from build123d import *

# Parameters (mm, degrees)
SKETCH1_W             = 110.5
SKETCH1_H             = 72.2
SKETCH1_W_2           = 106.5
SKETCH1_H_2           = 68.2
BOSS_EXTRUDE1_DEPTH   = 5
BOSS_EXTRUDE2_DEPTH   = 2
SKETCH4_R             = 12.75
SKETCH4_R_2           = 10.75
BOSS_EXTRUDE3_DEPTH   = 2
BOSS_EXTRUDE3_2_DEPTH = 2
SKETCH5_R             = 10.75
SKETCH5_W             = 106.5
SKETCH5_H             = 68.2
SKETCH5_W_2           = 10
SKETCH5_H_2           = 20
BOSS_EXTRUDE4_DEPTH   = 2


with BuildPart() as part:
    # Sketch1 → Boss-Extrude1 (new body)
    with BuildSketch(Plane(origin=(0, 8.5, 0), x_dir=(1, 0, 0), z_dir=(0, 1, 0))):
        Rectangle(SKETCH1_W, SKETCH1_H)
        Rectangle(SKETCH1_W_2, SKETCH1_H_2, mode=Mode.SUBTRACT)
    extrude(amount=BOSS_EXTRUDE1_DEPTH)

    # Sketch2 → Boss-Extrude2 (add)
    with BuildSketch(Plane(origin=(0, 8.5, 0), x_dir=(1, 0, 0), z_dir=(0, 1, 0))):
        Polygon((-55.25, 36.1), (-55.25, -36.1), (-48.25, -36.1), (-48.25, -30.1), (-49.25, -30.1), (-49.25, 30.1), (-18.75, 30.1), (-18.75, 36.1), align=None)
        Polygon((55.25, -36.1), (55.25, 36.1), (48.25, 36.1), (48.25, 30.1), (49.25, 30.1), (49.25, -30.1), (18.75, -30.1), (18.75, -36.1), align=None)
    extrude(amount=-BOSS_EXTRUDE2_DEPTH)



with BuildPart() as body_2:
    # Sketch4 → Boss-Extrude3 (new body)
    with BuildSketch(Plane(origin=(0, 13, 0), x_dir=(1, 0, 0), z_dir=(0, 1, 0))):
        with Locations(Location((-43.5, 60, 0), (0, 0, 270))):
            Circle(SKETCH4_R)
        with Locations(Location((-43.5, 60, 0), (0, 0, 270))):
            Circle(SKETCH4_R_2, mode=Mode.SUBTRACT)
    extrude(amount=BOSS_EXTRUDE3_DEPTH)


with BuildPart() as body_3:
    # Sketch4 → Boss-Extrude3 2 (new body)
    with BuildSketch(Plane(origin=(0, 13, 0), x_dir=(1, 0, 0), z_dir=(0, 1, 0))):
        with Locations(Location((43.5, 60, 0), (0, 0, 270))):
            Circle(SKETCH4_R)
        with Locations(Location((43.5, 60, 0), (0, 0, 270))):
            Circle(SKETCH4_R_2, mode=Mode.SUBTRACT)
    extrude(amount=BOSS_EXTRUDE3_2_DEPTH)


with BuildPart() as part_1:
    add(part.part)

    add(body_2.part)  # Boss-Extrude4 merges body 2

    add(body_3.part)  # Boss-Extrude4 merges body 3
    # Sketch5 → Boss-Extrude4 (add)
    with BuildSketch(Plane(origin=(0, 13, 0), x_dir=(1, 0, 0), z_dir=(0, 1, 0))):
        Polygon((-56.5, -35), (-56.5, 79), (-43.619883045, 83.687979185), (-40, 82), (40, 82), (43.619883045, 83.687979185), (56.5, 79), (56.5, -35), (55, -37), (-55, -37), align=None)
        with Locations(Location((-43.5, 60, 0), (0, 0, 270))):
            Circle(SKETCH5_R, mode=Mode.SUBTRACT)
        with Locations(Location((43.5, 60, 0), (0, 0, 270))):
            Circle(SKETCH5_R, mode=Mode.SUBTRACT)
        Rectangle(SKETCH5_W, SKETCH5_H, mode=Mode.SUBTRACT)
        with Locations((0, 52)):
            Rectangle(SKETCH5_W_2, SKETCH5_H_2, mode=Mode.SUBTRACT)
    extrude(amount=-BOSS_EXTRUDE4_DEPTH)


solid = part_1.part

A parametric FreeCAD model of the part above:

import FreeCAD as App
import Part
import Sketcher
from FreeCAD import Vector
Q = App.Units.Quantity

doc = App.newDocument("Part")
params = doc.addObject("Spreadsheet::Sheet", "Params")
for row, (alias, value) in enumerate([
    ("sketch1_width", "110.5 mm"),
    ("sketch1_width2", "106.5 mm"),
    ("sketch1_height", "72.2 mm"),
    ("sketch1_height2", "68.2 mm"),
    ("pad1_length", "5 mm"),
    ("sketch2_width", "7 mm"),
    ("sketch2_width2", "1 mm"),
    ("sketch2_height", "6 mm"),
    ("sketch2_width3", "30.5 mm"),
    ("sketch2_height2", "72.2 mm"),
    ("pad2_length", "2 mm"),
    ("sketch3_diameter", "25.5 mm"),
    ("sketch3_diameter2", "21.5 mm"),
    ("pad3_length", "2 mm"),
    ("sketch4_diameter", "25.5 mm"),
    ("sketch4_diameter2", "21.5 mm"),
    ("pad4_length", "2 mm"),
    ("sketch5_diameter", "21.5 mm"),
    ("sketch5_width", "110 mm"),
    ("sketch5_width2", "80 mm"),
    ("sketch5_width3", "10 mm"),
    ("sketch5_height", "114 mm"),
    ("pad5_length", "2 mm"),
], start=1):
    params.set(f"A{row}", alias)
    params.set(f"B{row}", "=" + value)
    params.setAlias(f"B{row}", alias)

body = doc.addObject("PartDesign::Body", "Body")

# Sketch on XZ plane
sketch1 = doc.addObject("Sketcher::SketchObject", "Sketch")
body.addObject(sketch1)
sketch1.AttachmentSupport = (doc.XZ_Plane, [""])
sketch1.MapMode = "FlatFace"
sketch1.AttachmentOffset = App.Placement(Vector(0, 0, -8.5), App.Rotation())
sketch1.addGeometry([
    Part.LineSegment(Vector(-55, -36, 0), Vector(-55, 36, 0)),  # 0
    Part.LineSegment(Vector(-55, 36, 0), Vector(55, 36, 0)),  # 1
    Part.LineSegment(Vector(55, 36, 0), Vector(55, -36, 0)),  # 2
    Part.LineSegment(Vector(55, -36, 0), Vector(-55, -36, 0)),  # 3
    Part.LineSegment(Vector(53, 34, 0), Vector(-53, 34, 0)),  # 4
    Part.LineSegment(Vector(-53, 34, 0), Vector(-53, -34, 0)),  # 5
    Part.LineSegment(Vector(-53, -34, 0), Vector(53, -34, 0)),  # 6
    Part.LineSegment(Vector(53, -34, 0), Vector(53, 34, 0)),  # 7
], False)
sketch1.addConstraint([
    Sketcher.Constraint("Coincident", 0, 2, 1, 1),
    Sketcher.Constraint("Coincident", 1, 2, 2, 1),
    Sketcher.Constraint("Coincident", 2, 2, 3, 1),
    Sketcher.Constraint("Coincident", 3, 2, 0, 1),
    Sketcher.Constraint("Coincident", 4, 2, 5, 1),
    Sketcher.Constraint("Coincident", 5, 2, 6, 1),
    Sketcher.Constraint("Coincident", 6, 2, 7, 1),
    Sketcher.Constraint("Coincident", 7, 2, 4, 1),
    Sketcher.Constraint("Vertical", 0),
    Sketcher.Constraint("Horizontal", 1),
    Sketcher.Constraint("Vertical", 2),
    Sketcher.Constraint("Horizontal", 3),
    Sketcher.Constraint("Horizontal", 4),
    Sketcher.Constraint("Vertical", 5),
    Sketcher.Constraint("Horizontal", 6),
    Sketcher.Constraint("Vertical", 7),
    Sketcher.Constraint("Symmetric", 0, 2, 2, 2, -1, 1),
    Sketcher.Constraint("Symmetric", 4, 2, 6, 2, -1, 1),
    Sketcher.Constraint("DistanceX", 1, 1, 1, 2, 110.5),
    Sketcher.Constraint("DistanceX", 4, 2, 4, 1, 106.5),
    Sketcher.Constraint("DistanceY", 0, 1, 0, 2, 72.2),
    Sketcher.Constraint("DistanceY", 5, 2, 5, 1, 68.2),
])
sketch1.setExpression("Constraints[18]", "Params.sketch1_width")
sketch1.setExpression("Constraints[19]", "Params.sketch1_width2")
sketch1.setExpression("Constraints[20]", "Params.sketch1_height")
sketch1.setExpression("Constraints[21]", "Params.sketch1_height2")
pad1 = doc.addObject("PartDesign::Pad", "Pad")
body.addObject(pad1)
pad1.Profile = sketch1
pad1.setExpression("Length", "Params.pad1_length")
pad1.Reversed = True

# Sketch on XZ plane
sketch2 = doc.addObject("Sketcher::SketchObject", "Sketch001")
body.addObject(sketch2)
sketch2.AttachmentSupport = (doc.XZ_Plane, [""])
sketch2.MapMode = "FlatFace"
sketch2.AttachmentOffset = App.Placement(Vector(0, 0, -8.5), App.Rotation())
sketch2.addGeometry([
    Part.LineSegment(Vector(-55.2, -36.1, 0), Vector(-55.2, 36.1, 0)),  # 0
    Part.LineSegment(Vector(-55.2, 36.1, 0), Vector(-48.2, 36.1, 0)),  # 1
    Part.LineSegment(Vector(-48.2, 36.1, 0), Vector(-48.2, 30.1, 0)),  # 2
    Part.LineSegment(Vector(-48.2, 30.1, 0), Vector(-49.2, 30.1, 0)),  # 3
    Part.LineSegment(Vector(-49.2, 30.1, 0), Vector(-49.2, -30.1, 0)),  # 4
    Part.LineSegment(Vector(-49.2, -30.1, 0), Vector(-18.8, -30.1, 0)),  # 5
    Part.LineSegment(Vector(-18.8, -30.1, 0), Vector(-18.8, -36.1, 0)),  # 6
    Part.LineSegment(Vector(-18.8, -36.1, 0), Vector(-55.2, -36.1, 0)),  # 7
    Part.LineSegment(Vector(55.2, 36.1, 0), Vector(55.2, -36.1, 0)),  # 8
    Part.LineSegment(Vector(55.2, -36.1, 0), Vector(48.2, -36.1, 0)),  # 9
    Part.LineSegment(Vector(48.2, -36.1, 0), Vector(48.2, -30.1, 0)),  # 10
    Part.LineSegment(Vector(48.2, -30.1, 0), Vector(49.2, -30.1, 0)),  # 11
    Part.LineSegment(Vector(49.2, -30.1, 0), Vector(49.2, 30.1, 0)),  # 12
    Part.LineSegment(Vector(49.2, 30.1, 0), Vector(18.8, 30.1, 0)),  # 13
    Part.LineSegment(Vector(18.8, 30.1, 0), Vector(18.8, 36.1, 0)),  # 14
    Part.LineSegment(Vector(18.8, 36.1, 0), Vector(55.2, 36.1, 0)),  # 15
], False)
sketch2.addConstraint([
    Sketcher.Constraint("Coincident", 0, 2, 1, 1),
    Sketcher.Constraint("Coincident", 1, 2, 2, 1),
    Sketcher.Constraint("Coincident", 2, 2, 3, 1),
    Sketcher.Constraint("Coincident", 3, 2, 4, 1),
    Sketcher.Constraint("Coincident", 4, 2, 5, 1),
    Sketcher.Constraint("Coincident", 5, 2, 6, 1),
    Sketcher.Constraint("Coincident", 6, 2, 7, 1),
    Sketcher.Constraint("Coincident", 7, 2, 0, 1),
    Sketcher.Constraint("Coincident", 8, 2, 9, 1),
    Sketcher.Constraint("Coincident", 9, 2, 10, 1),
    Sketcher.Constraint("Coincident", 10, 2, 11, 1),
    Sketcher.Constraint("Coincident", 11, 2, 12, 1),
    Sketcher.Constraint("Coincident", 12, 2, 13, 1),
    Sketcher.Constraint("Coincident", 13, 2, 14, 1),
    Sketcher.Constraint("Coincident", 14, 2, 15, 1),
    Sketcher.Constraint("Coincident", 15, 2, 8, 1),
    Sketcher.Constraint("Vertical", 0),
    Sketcher.Constraint("Horizontal", 1),
    Sketcher.Constraint("Vertical", 2),
    Sketcher.Constraint("Horizontal", 3),
    Sketcher.Constraint("Vertical", 4),
    Sketcher.Constraint("Horizontal", 5),
    Sketcher.Constraint("Vertical", 6),
    Sketcher.Constraint("Horizontal", 7),
    Sketcher.Constraint("Vertical", 8),
    Sketcher.Constraint("Horizontal", 9),
    Sketcher.Constraint("Vertical", 10),
    Sketcher.Constraint("Horizontal", 11),
    Sketcher.Constraint("Vertical", 12),
    Sketcher.Constraint("Horizontal", 13),
    Sketcher.Constraint("Vertical", 14),
    Sketcher.Constraint("Horizontal", 15),
    Sketcher.Constraint("Symmetric", 0, 2, 8, 2, -1, 1),
    Sketcher.Constraint("Symmetric", 2, 2, 10, 2, -1, 1),
    Sketcher.Constraint("Symmetric", 4, 2, 12, 2, -1, 1),
    Sketcher.Constraint("Symmetric", 6, 2, 14, 2, -1, 1),
    Sketcher.Constraint("Horizontal", 7, 2, 8, 2),
    Sketcher.Constraint("Horizontal", 5, 2, 10, 2),
    Sketcher.Constraint("DistanceX", 1, 1, 1, 2, 7.0),
    Sketcher.Constraint("DistanceX", 3, 2, 3, 1, 1.0),
    Sketcher.Constraint("DistanceY", 2, 2, 2, 1, 6.0),
    Sketcher.Constraint("DistanceX", 5, 1, 5, 2, 30.5),
    Sketcher.Constraint("DistanceY", 0, 1, 0, 2, 72.2),
    Sketcher.Constraint("DistanceX", 6, 2, 8, 2, 74.0),
])
sketch2.setExpression("Constraints[38]", "Params.sketch2_width")
sketch2.setExpression("Constraints[39]", "Params.sketch2_width2")
sketch2.setExpression("Constraints[40]", "Params.sketch2_height")
sketch2.setExpression("Constraints[41]", "Params.sketch2_width3")
sketch2.setExpression("Constraints[42]", "Params.sketch2_height2")
pad2 = doc.addObject("PartDesign::Pad", "Pad001")
body.addObject(pad2)
pad2.Profile = sketch2
pad2.setExpression("Length", "Params.pad2_length")
body2 = doc.addObject("PartDesign::Body", "Body001")

# Sketch on XZ plane
sketch3 = doc.addObject("Sketcher::SketchObject", "Sketch002")
body2.addObject(sketch3)
sketch3.AttachmentSupport = (doc.getObject("XZ_Plane001"), [""])
sketch3.MapMode = "FlatFace"
sketch3.AttachmentOffset = App.Placement(Vector(0, 0, -13), App.Rotation())
sketch3.addGeometry([
    Part.Circle(Vector(-44, -60, 0), Vector(0, 0, 1), 13),
    Part.Circle(Vector(-44, -60, 0), Vector(0, 0, 1), 11),
], False)
sketch3.addConstraint([
    Sketcher.Constraint("Coincident", 1, 3, 0, 3),
    Sketcher.Constraint("Diameter", 0, 25.5),
    Sketcher.Constraint("Diameter", 1, 21.5),
    Sketcher.Constraint("DistanceY", 0, 3, -1, 1, 60.0),
    Sketcher.Constraint("DistanceX", 0, 3, -1, 1, 43.5),
])
sketch3.setExpression("Constraints[1]", "Params.sketch3_diameter")
sketch3.setExpression("Constraints[2]", "Params.sketch3_diameter2")
pad3 = doc.addObject("PartDesign::Pad", "Pad002")
body2.addObject(pad3)
pad3.Profile = sketch3
pad3.setExpression("Length", "Params.pad3_length")
pad3.Reversed = True
body3 = doc.addObject("PartDesign::Body", "Body002")

# Sketch on XZ plane
sketch4 = doc.addObject("Sketcher::SketchObject", "Sketch003")
body3.addObject(sketch4)
sketch4.AttachmentSupport = (doc.getObject("XZ_Plane002"), [""])
sketch4.MapMode = "FlatFace"
sketch4.AttachmentOffset = App.Placement(Vector(0, 0, -13), App.Rotation())
sketch4.addGeometry([
    Part.Circle(Vector(44, -60, 0), Vector(0, 0, 1), 13),
    Part.Circle(Vector(44, -60, 0), Vector(0, 0, 1), 11),
], False)
sketch4.addConstraint([
    Sketcher.Constraint("Coincident", 1, 3, 0, 3),
    Sketcher.Constraint("Diameter", 0, 25.5),
    Sketcher.Constraint("Diameter", 1, 21.5),
    Sketcher.Constraint("DistanceY", 0, 3, -1, 1, 60.0),
    Sketcher.Constraint("DistanceX", -1, 1, 0, 3, 43.5),
])
sketch4.setExpression("Constraints[1]", "Params.sketch4_diameter")
sketch4.setExpression("Constraints[2]", "Params.sketch4_diameter2")
pad4 = doc.addObject("PartDesign::Pad", "Pad003")
body3.addObject(pad4)
pad4.Profile = sketch4
pad4.setExpression("Length", "Params.pad4_length")
pad4.Reversed = True
body.AllowCompound = True
doc.recompute()

boolean = doc.addObject("PartDesign::Boolean", "Boolean")
body.addObject(boolean)
boolean.Type = "Fuse"
boolean.addObjects([body2])
doc.recompute()

boolean2 = doc.addObject("PartDesign::Boolean", "Boolean001")
body.addObject(boolean2)
boolean2.Type = "Fuse"
boolean2.addObjects([body3])

# Sketch on XZ plane
sketch5 = doc.addObject("Sketcher::SketchObject", "Sketch004")
body.addObject(sketch5)
sketch5.AttachmentSupport = (doc.XZ_Plane, [""])
sketch5.MapMode = "FlatFace"
sketch5.AttachmentOffset = App.Placement(Vector(0, 0, -13), App.Rotation())
sketch5.addGeometry([
    Part.LineSegment(Vector(-56.5, -79, 0), Vector(-56.5, 35, 0)),  # 0
    Part.LineSegment(Vector(-56.5, 35, 0), Vector(-55, 37, 0)),  # 1
    Part.LineSegment(Vector(-55, 37, 0), Vector(55, 37, 0)),  # 2
    Part.LineSegment(Vector(55, 37, 0), Vector(56.5, 35, 0)),  # 3
    Part.LineSegment(Vector(56.5, 35, 0), Vector(56.5, -79, 0)),  # 4
    Part.LineSegment(Vector(56.5, -79, 0), Vector(43.6, -83.7, 0)),  # 5
    Part.LineSegment(Vector(43.6, -83.7, 0), Vector(40, -82, 0)),  # 6
    Part.LineSegment(Vector(40, -82, 0), Vector(-40, -82, 0)),  # 7
    Part.LineSegment(Vector(-40, -82, 0), Vector(-43.6, -83.7, 0)),  # 8
    Part.LineSegment(Vector(-43.6, -83.7, 0), Vector(-56.5, -79, 0)),  # 9
    Part.LineSegment(Vector(-53.2, 34.1, 0), Vector(-53.2, -34.1, 0)),  # 10
    Part.LineSegment(Vector(-53.2, -34.1, 0), Vector(53.2, -34.1, 0)),  # 11
    Part.LineSegment(Vector(53.2, -34.1, 0), Vector(53.2, 34.1, 0)),  # 12
    Part.LineSegment(Vector(53.2, 34.1, 0), Vector(-53.2, 34.1, 0)),  # 13
    Part.Circle(Vector(43.5, -60, 0), Vector(0, 0, 1), 10.8),  # 14
    Part.LineSegment(Vector(-5, -42, 0), Vector(-5, -62, 0)),  # 15
    Part.LineSegment(Vector(-5, -62, 0), Vector(5, -62, 0)),  # 16
    Part.LineSegment(Vector(5, -62, 0), Vector(5, -42, 0)),  # 17
    Part.LineSegment(Vector(5, -42, 0), Vector(-5, -42, 0)),  # 18
    Part.Circle(Vector(-43.5, -60, 0), Vector(0, 0, 1), 10.8),  # 19
], False)
sketch5.addConstraint([
    Sketcher.Constraint("Coincident", 0, 2, 1, 1),
    Sketcher.Constraint("Coincident", 1, 2, 2, 1),
    Sketcher.Constraint("Coincident", 2, 2, 3, 1),
    Sketcher.Constraint("Coincident", 3, 2, 4, 1),
    Sketcher.Constraint("Coincident", 4, 2, 5, 1),
    Sketcher.Constraint("Coincident", 5, 2, 6, 1),
    Sketcher.Constraint("Coincident", 6, 2, 7, 1),
    Sketcher.Constraint("Coincident", 7, 2, 8, 1),
    Sketcher.Constraint("Coincident", 8, 2, 9, 1),
    Sketcher.Constraint("Coincident", 9, 2, 0, 1),
    Sketcher.Constraint("Coincident", 10, 2, 11, 1),
    Sketcher.Constraint("Coincident", 11, 2, 12, 1),
    Sketcher.Constraint("Coincident", 12, 2, 13, 1),
    Sketcher.Constraint("Coincident", 13, 2, 10, 1),
    Sketcher.Constraint("Coincident", 15, 2, 16, 1),
    Sketcher.Constraint("Coincident", 16, 2, 17, 1),
    Sketcher.Constraint("Coincident", 17, 2, 18, 1),
    Sketcher.Constraint("Coincident", 18, 2, 15, 1),
    Sketcher.Constraint("Vertical", 0),
    Sketcher.Constraint("Horizontal", 2),
    Sketcher.Constraint("Vertical", 4),
    Sketcher.Constraint("Horizontal", 7),
    Sketcher.Constraint("Vertical", 10),
    Sketcher.Constraint("Horizontal", 11),
    Sketcher.Constraint("Vertical", 12),
    Sketcher.Constraint("Horizontal", 13),
    Sketcher.Constraint("Vertical", 15),
    Sketcher.Constraint("Horizontal", 16),
    Sketcher.Constraint("Vertical", 17),
    Sketcher.Constraint("Horizontal", 18),
    Sketcher.Constraint("Equal", 14, 19),
    Sketcher.Constraint("Symmetric", 10, 2, 12, 2, -1, 1),
    Sketcher.Constraint("Symmetric", 14, 3, 19, 3, -2),
    Sketcher.Constraint("Symmetric", 0, 2, 3, 2, -2),
    Sketcher.Constraint("Symmetric", 5, 2, 8, 2, -2),
    Sketcher.Constraint("Horizontal", 4, 2, 9, 2),
    Sketcher.Constraint("Equal", 1, 3),
    Sketcher.Constraint("Equal", 6, 8),
    Sketcher.Constraint("Diameter", 14, 21.5),
    Sketcher.Constraint("DistanceX", 2, 1, 2, 2, 110.0),
    Sketcher.Constraint("DistanceX", 7, 2, 7, 1, 80.0),
    Sketcher.Constraint("DistanceX", 16, 1, 16, 2, 10.0),
    Sketcher.Constraint("DistanceY", 0, 1, 0, 2, 114.0),
    Sketcher.Constraint("DistanceY", 15, 2, 15, 1, 20.0),
    Sketcher.Constraint("Angle", 5, Q("-160 deg")),
    Sketcher.Constraint("Angle", 6, Q("155 deg")),
    Sketcher.Constraint("DistanceX", 11, 1, 11, 2, 106.5),
    Sketcher.Constraint("DistanceY", 10, 2, 10, 1, 68.2),
    Sketcher.Constraint("DistanceY", 14, 3, -1, 1, 60.0),
    Sketcher.Constraint("DistanceY", -1, 1, 0, 2, 35.0),
    Sketcher.Constraint("DistanceY", -1, 1, 1, 2, 37.0),
    Sketcher.Constraint("DistanceY", 6, 2, -1, 1, 82.0),
    Sketcher.Constraint("DistanceX", 15, 2, -1, 1, 5.0),
    Sketcher.Constraint("DistanceY", 15, 2, -1, 1, 62.0),
    Sketcher.Constraint("DistanceX", 19, 3, 14, 3, 87.0),
    Sketcher.Constraint("DistanceX", 0, 2, 19, 3, 13.0),
])
sketch5.setExpression("Constraints[38]", "Params.sketch5_diameter")
sketch5.setExpression("Constraints[39]", "Params.sketch5_width")
sketch5.setExpression("Constraints[40]", "Params.sketch5_width2")
sketch5.setExpression("Constraints[41]", "Params.sketch5_width3")
sketch5.setExpression("Constraints[42]", "Params.sketch5_height")
pad5 = doc.addObject("PartDesign::Pad", "Pad004")
body.addObject(pad5)
pad5.Profile = sketch5
pad5.setExpression("Length", "Params.pad5_length")

doc.recompute()
